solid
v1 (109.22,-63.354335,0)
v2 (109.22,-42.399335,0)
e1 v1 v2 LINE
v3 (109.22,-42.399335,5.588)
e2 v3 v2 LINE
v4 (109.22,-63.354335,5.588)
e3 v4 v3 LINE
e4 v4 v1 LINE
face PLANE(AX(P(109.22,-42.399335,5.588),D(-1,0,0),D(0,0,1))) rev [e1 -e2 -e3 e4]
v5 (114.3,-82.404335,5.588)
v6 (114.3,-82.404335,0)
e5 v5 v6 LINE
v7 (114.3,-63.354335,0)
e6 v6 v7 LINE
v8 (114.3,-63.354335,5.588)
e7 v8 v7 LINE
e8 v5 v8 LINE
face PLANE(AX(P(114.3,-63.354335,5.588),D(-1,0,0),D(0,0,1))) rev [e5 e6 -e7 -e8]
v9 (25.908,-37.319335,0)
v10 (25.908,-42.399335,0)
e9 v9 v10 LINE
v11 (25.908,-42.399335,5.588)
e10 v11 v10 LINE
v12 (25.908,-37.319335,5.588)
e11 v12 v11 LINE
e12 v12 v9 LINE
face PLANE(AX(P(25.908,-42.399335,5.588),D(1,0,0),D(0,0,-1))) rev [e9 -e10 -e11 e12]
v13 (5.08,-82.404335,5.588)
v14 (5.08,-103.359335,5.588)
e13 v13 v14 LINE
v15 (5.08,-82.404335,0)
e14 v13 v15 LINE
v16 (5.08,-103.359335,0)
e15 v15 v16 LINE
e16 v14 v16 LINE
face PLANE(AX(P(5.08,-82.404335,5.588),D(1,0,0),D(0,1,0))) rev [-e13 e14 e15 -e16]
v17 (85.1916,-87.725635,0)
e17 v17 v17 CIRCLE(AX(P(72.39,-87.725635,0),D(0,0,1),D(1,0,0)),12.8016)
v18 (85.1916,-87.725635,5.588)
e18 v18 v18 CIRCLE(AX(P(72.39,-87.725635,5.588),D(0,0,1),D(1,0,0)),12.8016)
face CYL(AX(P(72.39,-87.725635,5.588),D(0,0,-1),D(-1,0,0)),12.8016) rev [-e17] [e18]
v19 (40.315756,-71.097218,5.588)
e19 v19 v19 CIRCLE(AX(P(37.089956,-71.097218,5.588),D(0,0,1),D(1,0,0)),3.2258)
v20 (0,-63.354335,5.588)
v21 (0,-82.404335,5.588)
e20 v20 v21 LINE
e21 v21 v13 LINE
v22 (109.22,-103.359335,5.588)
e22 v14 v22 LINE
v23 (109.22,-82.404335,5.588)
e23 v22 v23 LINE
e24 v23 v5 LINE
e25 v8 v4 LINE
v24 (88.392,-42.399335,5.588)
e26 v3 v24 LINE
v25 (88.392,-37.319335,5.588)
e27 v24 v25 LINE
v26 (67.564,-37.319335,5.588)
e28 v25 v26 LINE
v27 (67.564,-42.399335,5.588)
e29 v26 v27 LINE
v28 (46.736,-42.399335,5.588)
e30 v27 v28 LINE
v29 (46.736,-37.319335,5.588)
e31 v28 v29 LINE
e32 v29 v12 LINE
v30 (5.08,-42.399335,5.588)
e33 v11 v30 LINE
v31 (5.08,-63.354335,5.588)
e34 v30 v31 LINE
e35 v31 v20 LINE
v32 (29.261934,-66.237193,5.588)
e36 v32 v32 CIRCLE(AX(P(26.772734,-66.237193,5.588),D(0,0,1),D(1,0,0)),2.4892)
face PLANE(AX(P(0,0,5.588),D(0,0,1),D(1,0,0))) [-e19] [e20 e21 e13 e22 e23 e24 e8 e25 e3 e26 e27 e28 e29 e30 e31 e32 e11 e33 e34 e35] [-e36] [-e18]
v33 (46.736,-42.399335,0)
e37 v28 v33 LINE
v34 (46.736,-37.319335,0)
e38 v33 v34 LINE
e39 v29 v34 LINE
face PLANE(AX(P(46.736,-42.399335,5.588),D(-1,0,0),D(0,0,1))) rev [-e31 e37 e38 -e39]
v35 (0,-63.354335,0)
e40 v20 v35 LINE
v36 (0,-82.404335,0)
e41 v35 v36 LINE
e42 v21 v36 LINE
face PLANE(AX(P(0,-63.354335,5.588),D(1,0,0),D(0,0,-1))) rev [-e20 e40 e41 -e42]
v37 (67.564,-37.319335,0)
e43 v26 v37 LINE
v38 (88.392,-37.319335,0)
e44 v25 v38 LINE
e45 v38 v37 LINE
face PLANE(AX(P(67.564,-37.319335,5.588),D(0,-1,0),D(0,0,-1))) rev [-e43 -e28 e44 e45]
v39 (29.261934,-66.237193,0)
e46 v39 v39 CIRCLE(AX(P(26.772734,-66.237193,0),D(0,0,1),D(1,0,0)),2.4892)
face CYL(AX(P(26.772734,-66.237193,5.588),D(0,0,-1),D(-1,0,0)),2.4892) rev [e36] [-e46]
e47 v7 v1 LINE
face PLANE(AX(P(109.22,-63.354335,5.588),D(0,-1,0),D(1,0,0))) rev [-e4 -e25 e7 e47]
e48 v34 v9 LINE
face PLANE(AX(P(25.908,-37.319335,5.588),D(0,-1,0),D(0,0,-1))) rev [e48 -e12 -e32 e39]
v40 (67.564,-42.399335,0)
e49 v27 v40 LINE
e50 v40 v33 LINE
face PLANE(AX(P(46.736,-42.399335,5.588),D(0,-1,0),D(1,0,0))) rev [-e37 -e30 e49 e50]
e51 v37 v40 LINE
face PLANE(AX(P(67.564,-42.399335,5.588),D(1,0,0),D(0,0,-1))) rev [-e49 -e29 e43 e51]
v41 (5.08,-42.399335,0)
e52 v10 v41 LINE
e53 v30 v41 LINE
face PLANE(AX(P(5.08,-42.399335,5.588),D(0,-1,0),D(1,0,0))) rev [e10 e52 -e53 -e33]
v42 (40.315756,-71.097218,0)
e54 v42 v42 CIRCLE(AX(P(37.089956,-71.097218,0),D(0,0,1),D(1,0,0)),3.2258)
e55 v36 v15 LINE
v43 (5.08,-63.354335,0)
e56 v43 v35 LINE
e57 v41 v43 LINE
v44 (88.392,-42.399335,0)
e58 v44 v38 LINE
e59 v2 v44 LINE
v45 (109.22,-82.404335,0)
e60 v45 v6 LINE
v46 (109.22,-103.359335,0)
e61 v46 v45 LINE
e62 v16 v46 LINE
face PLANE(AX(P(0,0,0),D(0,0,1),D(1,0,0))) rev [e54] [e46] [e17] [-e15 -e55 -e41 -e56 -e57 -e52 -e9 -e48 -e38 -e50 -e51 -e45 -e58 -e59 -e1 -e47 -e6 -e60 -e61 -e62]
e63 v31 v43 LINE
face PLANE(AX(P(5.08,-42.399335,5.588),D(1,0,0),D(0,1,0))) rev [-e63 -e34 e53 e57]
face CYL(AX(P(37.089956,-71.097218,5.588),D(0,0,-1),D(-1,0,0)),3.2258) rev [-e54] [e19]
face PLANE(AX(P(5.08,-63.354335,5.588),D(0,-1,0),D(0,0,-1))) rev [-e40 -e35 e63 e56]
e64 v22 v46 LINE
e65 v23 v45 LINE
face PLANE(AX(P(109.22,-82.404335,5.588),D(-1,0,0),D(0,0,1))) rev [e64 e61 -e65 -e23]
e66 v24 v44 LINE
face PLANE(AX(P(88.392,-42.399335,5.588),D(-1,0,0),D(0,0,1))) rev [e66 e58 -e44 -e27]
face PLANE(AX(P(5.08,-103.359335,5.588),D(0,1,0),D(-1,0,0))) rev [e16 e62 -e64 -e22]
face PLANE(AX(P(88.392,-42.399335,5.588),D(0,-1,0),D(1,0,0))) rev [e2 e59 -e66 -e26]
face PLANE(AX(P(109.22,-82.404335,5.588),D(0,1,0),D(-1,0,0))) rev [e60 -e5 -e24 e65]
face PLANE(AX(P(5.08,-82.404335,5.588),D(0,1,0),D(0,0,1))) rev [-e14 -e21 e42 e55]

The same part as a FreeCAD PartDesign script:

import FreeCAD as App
import Part
import Sketcher
from FreeCAD import Vector
Q = App.Units.Quantity


def add_polygon(sketch, points):
    """Adds a closed chain of lines whose ends are joined by coincident constraints."""
    first, n = sketch.GeometryCount, len(points)
    for a, b in zip(points, points[1:] + points[:1]):
        sketch.addGeometry(Part.LineSegment(App.Vector(*a, 0), App.Vector(*b, 0)), False)
    for i in range(n):
        sketch.addConstraint(Sketcher.Constraint("Coincident", first + i, 2, first + (i + 1) % n, 1))

doc = App.newDocument("Part")
body = doc.addObject("PartDesign::Body", "Body")

# Sketch on XY plane
sketch1 = body.newObject("Sketcher::SketchObject", "Sketch")
sketch1.AttachmentSupport = (doc.getObject("XY_Plane"), [""])
sketch1.MapMode = "FlatFace"
add_polygon(sketch1, [(5.1, -82.4), (5.1, -103.4), (109.2, -103.4), (109.2, -82.4), (114.3, -82.4), (114.3, -63.4), (109.2, -63.4), (109.2, -42.4), (88.4, -42.4), (88.4, -37.3), (67.6, -37.3), (67.6, -42.4), (46.7, -42.4), (46.7, -37.3), (25.9, -37.3), (25.9, -42.4), (5.1, -42.4), (5.1, -63.4), (0, -63.4), (0, -82.4)])  # lines 0-19
sketch1.addGeometry(Part.Circle(Vector(72.4, -87.7, 0), Vector(0, 0, 1), 12.8), False)  # 20
sketch1.addGeometry(Part.Circle(Vector(37.1, -71.1, 0), Vector(0, 0, 1), 3.2), False)  # 21
sketch1.addGeometry(Part.Circle(Vector(26.8, -66.2, 0), Vector(0, 0, 1), 2.5), False)  # 22
sketch1.addConstraint([
    Sketcher.Constraint("Vertical", 0),
    Sketcher.Constraint("Horizontal", 1),
    Sketcher.Constraint("Vertical", 2),
    Sketcher.Constraint("Horizontal", 3),
    Sketcher.Constraint("Vertical", 4),
    Sketcher.Constraint("Horizontal", 5),
    Sketcher.Constraint("Vertical", 6),
    Sketcher.Constraint("Horizontal", 7),
    Sketcher.Constraint("Vertical", 8),
    Sketcher.Constraint("Horizontal", 9),
    Sketcher.Constraint("Vertical", 10),
    Sketcher.Constraint("Horizontal", 11),
    Sketcher.Constraint("Vertical", 12),
    Sketcher.Constraint("Horizontal", 13),
    Sketcher.Constraint("Vertical", 14),
    Sketcher.Constraint("Horizontal", 15),
    Sketcher.Constraint("Vertical", 16),
    Sketcher.Constraint("Horizontal", 17),
    Sketcher.Constraint("Vertical", 18),
    Sketcher.Constraint("Horizontal", 19),
    Sketcher.Constraint("PointOnObject", 17, 2, -2),
    Sketcher.Constraint("Horizontal", 7, 2, 10, 2),
    Sketcher.Constraint("Horizontal", 9, 2, 12, 2),
    Sketcher.Constraint("Horizontal", 11, 2, 14, 2),
    Sketcher.Constraint("Horizontal", 5, 2, 16, 2),
    Sketcher.Constraint("Horizontal", 3, 2, 18, 2),
    Sketcher.Constraint("Vertical", 2, 2, 5, 2),
    Sketcher.Constraint("Vertical", 0, 2, 15, 2),
    Sketcher.Constraint("Equal", 7, 9),
    Sketcher.Constraint("Equal", 9, 11),
    Sketcher.Constraint("Equal", 11, 13),
    Sketcher.Constraint("Equal", 13, 15),
    Sketcher.Constraint("Equal", 5, 17),
    Sketcher.Constraint("Equal", 2, 6),
    Sketcher.Constraint("Equal", 19, 8),
    Sketcher.Constraint("Diameter", 20, Q("1.008 in")),
    Sketcher.Constraint("Diameter", 21, Q("0.254 in")),
    Sketcher.Constraint("Diameter", 22, Q("0.196 in")),
    Sketcher.Constraint("DistanceX", 1, 1, 1, 2, Q("4.1 in")),
    Sketcher.Constraint("DistanceX", 3, 1, 3, 2, Q("0.2 in")),
    Sketcher.Constraint("DistanceY", 4, 1, 4, 2, Q("0.75 in")),
    Sketcher.Constraint("DistanceY", 0, 2, 0, 1, Q("0.825 in")),
    Sketcher.Constraint("DistanceX", -1, 1, 20, 3, Q("2.85 in")),
    Sketcher.Constraint("DistanceY", 0, 2, 20, 3, Q("0.6155 in")),
    Sketcher.Constraint("DistanceX", 22, 3, 21, 3, 10.317222),
    Sketcher.Constraint("DistanceY", 20, 3, 22, 3, 21.488442),
    Sketcher.Constraint("DistanceY", 20, 3, -1, 1, 87.725635),
    Sketcher.Constraint("DistanceX", -1, 1, 21, 3, 37.089956),
    Sketcher.Constraint("DistanceY", 21, 3, -1, 1, 71.097218),
])
pad1 = body.newObject("PartDesign::Pad", "Pad")
pad1.Profile = sketch1
pad1.Length = Q("0.22 in")

doc.recompute()
